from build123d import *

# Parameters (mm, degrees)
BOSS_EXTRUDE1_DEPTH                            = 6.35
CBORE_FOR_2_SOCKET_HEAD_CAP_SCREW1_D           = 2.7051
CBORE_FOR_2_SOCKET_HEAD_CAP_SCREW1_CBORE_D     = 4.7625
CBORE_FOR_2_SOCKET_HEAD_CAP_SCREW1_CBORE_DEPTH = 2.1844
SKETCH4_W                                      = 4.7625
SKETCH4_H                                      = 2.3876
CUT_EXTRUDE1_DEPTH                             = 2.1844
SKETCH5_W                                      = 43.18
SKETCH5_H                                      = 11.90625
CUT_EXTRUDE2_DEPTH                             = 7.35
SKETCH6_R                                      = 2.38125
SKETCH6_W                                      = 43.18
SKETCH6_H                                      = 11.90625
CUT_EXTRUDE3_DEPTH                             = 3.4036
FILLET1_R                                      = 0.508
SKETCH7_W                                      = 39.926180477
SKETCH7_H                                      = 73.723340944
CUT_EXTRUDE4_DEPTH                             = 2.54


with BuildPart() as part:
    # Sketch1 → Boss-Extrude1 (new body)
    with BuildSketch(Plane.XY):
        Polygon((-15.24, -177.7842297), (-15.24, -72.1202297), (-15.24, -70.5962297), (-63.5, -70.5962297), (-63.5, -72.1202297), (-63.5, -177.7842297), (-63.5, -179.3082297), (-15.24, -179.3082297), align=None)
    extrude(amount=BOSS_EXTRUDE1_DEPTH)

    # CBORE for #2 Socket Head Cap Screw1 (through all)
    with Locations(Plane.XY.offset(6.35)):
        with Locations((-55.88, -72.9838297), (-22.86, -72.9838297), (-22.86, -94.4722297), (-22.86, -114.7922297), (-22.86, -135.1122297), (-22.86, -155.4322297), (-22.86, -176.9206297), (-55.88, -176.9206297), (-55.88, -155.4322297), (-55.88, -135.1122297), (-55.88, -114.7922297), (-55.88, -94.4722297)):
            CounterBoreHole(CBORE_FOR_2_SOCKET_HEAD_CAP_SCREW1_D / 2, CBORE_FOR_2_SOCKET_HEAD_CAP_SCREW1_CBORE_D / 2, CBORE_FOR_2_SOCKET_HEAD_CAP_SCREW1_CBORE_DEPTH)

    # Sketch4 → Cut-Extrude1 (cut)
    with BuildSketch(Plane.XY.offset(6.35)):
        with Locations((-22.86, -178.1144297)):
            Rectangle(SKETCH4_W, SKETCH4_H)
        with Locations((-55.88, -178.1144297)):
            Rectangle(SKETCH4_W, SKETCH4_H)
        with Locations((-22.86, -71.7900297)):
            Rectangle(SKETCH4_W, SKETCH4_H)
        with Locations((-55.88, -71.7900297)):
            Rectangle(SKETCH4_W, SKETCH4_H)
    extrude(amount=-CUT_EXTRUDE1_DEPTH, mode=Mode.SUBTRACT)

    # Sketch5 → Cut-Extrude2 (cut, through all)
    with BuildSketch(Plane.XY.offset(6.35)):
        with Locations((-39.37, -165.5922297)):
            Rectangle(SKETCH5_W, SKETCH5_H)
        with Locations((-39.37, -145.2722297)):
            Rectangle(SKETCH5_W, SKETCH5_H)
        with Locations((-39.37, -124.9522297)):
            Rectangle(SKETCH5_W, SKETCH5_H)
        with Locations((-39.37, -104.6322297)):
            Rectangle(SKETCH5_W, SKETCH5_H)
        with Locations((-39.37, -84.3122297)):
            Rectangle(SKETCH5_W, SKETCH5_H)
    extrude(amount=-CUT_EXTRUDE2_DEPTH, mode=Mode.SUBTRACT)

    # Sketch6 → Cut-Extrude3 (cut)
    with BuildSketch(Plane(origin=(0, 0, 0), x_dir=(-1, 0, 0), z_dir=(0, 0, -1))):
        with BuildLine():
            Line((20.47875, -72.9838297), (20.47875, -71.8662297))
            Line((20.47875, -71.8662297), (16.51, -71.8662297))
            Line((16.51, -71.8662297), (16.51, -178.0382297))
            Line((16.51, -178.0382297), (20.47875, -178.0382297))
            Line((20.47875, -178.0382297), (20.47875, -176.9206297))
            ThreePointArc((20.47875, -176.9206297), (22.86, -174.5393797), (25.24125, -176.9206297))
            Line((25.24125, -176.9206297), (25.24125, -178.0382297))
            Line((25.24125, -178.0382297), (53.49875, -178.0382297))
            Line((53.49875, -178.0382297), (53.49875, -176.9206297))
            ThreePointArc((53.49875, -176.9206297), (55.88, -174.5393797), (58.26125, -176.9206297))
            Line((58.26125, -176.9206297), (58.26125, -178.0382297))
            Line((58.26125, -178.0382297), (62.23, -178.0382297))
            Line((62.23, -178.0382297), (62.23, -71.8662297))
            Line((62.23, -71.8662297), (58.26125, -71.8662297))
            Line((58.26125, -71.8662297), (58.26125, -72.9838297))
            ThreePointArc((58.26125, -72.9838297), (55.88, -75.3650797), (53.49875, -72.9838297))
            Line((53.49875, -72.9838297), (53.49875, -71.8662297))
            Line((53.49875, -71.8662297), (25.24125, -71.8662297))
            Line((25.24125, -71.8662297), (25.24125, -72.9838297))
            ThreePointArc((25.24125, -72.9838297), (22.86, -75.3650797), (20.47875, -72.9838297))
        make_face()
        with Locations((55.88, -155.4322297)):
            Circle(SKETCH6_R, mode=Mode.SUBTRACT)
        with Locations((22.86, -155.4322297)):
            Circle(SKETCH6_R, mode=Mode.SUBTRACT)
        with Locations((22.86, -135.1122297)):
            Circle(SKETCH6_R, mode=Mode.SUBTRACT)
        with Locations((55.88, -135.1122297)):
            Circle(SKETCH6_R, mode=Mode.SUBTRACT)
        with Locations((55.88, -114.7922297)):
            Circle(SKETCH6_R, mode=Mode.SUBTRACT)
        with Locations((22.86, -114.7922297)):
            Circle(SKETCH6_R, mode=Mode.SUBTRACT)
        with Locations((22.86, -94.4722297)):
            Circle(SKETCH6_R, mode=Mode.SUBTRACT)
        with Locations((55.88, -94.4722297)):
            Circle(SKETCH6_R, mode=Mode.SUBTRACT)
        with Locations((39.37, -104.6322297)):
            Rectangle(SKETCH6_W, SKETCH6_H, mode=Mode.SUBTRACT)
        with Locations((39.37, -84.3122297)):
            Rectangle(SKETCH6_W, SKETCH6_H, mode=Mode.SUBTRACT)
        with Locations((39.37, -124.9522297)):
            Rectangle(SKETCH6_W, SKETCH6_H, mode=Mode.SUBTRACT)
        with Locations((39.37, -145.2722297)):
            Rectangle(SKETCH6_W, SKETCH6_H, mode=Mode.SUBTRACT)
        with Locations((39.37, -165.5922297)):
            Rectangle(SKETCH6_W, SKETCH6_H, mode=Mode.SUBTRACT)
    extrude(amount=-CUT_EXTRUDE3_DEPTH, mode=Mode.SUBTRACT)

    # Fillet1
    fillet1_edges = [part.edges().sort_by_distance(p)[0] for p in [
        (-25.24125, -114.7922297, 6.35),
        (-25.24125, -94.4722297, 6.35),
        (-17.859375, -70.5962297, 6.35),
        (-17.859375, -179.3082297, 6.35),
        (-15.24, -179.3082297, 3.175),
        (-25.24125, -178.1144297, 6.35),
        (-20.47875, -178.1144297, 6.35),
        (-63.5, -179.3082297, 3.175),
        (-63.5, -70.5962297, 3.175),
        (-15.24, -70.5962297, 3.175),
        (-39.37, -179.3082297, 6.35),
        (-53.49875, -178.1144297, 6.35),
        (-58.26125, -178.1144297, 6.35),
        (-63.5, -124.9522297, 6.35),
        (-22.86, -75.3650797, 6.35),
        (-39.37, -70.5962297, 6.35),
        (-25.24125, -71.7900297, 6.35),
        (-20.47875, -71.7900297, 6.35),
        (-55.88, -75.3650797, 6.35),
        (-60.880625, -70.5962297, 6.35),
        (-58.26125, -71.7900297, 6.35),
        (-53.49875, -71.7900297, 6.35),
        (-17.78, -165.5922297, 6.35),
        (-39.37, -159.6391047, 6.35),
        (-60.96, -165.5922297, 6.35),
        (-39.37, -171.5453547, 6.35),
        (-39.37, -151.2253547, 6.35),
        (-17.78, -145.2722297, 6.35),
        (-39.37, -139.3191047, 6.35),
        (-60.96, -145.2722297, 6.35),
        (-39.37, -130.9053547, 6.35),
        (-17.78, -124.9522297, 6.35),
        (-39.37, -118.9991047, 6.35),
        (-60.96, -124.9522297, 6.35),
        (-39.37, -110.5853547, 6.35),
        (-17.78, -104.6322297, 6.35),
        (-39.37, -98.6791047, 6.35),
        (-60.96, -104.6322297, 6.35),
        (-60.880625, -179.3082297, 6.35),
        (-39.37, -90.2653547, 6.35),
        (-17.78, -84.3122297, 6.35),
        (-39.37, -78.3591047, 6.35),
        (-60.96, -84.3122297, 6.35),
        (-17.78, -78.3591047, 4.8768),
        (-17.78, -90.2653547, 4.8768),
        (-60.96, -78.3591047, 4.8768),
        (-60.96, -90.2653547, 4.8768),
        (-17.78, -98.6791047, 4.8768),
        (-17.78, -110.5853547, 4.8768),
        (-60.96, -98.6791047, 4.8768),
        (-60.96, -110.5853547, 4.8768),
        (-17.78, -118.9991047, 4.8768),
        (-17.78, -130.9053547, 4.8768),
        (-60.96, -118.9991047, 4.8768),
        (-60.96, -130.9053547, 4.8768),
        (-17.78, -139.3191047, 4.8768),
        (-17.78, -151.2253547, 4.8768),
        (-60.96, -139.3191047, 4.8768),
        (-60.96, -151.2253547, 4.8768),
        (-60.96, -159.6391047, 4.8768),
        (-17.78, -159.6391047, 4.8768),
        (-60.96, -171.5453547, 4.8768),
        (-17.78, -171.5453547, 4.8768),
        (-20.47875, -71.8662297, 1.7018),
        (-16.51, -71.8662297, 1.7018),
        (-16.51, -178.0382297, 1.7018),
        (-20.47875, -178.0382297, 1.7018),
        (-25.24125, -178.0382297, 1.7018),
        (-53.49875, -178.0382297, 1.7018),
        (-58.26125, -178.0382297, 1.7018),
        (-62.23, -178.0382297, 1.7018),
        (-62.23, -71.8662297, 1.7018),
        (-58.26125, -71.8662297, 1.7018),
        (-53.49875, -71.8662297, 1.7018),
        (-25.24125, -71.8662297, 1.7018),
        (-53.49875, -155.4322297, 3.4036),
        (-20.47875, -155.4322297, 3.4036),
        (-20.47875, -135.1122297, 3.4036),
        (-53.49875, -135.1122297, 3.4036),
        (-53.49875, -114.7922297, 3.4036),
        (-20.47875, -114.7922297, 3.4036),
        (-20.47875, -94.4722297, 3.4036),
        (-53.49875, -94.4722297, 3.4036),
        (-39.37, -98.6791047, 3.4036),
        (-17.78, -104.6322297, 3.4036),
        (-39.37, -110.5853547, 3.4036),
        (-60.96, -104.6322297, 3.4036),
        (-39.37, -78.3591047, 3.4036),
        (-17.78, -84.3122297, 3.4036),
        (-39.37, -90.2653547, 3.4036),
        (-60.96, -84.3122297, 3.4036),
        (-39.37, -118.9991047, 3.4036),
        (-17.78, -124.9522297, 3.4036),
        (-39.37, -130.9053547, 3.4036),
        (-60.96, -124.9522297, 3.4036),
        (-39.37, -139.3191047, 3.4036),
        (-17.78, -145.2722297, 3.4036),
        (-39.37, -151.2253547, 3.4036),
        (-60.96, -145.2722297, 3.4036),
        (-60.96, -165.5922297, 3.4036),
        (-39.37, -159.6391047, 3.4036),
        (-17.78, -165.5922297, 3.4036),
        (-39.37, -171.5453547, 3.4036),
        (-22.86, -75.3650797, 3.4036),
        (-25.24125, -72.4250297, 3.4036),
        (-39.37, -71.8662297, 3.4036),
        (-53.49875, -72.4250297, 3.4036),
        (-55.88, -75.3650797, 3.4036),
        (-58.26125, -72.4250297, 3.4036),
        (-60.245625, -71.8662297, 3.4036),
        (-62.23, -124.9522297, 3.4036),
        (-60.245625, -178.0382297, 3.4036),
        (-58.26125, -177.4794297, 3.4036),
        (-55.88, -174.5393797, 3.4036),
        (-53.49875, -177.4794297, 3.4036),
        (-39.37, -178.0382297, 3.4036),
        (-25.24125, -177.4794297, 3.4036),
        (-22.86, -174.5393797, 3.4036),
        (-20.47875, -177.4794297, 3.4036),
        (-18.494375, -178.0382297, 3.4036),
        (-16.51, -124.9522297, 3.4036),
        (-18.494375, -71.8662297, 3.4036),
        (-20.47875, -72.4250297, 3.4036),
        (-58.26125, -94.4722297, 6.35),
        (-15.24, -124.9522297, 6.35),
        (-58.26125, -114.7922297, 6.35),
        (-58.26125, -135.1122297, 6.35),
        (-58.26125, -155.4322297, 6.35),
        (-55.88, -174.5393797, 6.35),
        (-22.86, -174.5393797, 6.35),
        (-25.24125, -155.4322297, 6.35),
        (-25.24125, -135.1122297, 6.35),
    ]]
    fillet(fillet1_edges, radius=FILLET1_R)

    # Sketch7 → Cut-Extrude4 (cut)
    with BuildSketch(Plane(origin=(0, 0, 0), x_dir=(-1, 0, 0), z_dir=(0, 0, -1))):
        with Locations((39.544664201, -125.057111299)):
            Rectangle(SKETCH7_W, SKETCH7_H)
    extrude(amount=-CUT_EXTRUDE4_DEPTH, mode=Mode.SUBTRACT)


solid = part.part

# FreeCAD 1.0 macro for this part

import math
import FreeCAD as App
import Part
import Sketcher

V = App.Vector
Q = App.Units.Quantity


def edges_at(feature, points):
    """Names of the edges that pass closest to the given points."""
    edges = feature.Shape.Edges
    near = lambda p: min(range(len(edges)), key=lambda i: edges[i].distToShape(Part.Vertex(*p))[0])
    return sorted({f"Edge{near(p) + 1}" for p in points})

doc = App.newDocument("Part")
params = doc.addObject("Spreadsheet::Sheet", "Params")
for row, (alias, value) in enumerate([
    ("sketch1_width", "1.9 in"),
    ("sketch1_height", "4.28 in"),
    ("pad1_length", "0.25 in"),
    ("hole_diameter", "0.1065 in"),
    ("hole_cbore_diameter", "0.1875 in"),
    ("hole_cbore_depth", "0.086 in"),
    ("sketch3_width", "0.1875 in"),
    ("sketch3_height", "0.094 in"),
    ("pocket1_length", "0.086 in"),
    ("sketch4_width", "1.7 in"),
    ("sketch4_height", "0.46875 in"),
    ("sketch5_diameter", "0.1875 in"),
    ("sketch5_width", "1.7 in"),
    ("sketch5_height", "4.18 in"),
    ("sketch5_width2", "0.15625 in"),
    ("sketch5_height2", "0.044 in"),
    ("pocket3_length", "0.134 in"),
    ("fillet_radius", "0.02 in"),
    ("pocket4_length", "0.1 in"),
], start=1):
    params.set(f"A{row}", alias)
    params.set(f"B{row}", "=" + value)
    params.setAlias(f"B{row}", alias)

body = doc.addObject("PartDesign::Body", "Body")

# Sketch on XY plane
sketch1 = body.newObject("Sketcher::SketchObject", "Sketch")
sketch1.AttachmentSupport = (doc.getObject("XY_Plane"), [""])
sketch1.MapMode = "FlatFace"
sketch1.addGeometry(Part.LineSegment(V(-15, -71, 0), V(-64, -71, 0)), False)
sketch1.addGeometry(Part.LineSegment(V(-64, -71, 0), V(-64, -179, 0)), False)
sketch1.addGeometry(Part.LineSegment(V(-64, -179, 0), V(-15, -179, 0)), False)
sketch1.addGeometry(Part.LineSegment(V(-15, -179, 0), V(-15, -71, 0)), False)
sketch1.addConstraint(Sketcher.Constraint("Coincident", 0, 2, 1, 1))
sketch1.addConstraint(Sketcher.Constraint("Coincident", 1, 2, 2, 1))
sketch1.addConstraint(Sketcher.Constraint("Coincident", 2, 2, 3, 1))
sketch1.addConstraint(Sketcher.Constraint("Coincident", 3, 2, 0, 1))
sketch1.addConstraint(Sketcher.Constraint("Horizontal", 0))
sketch1.addConstraint(Sketcher.Constraint("Vertical", 1))
sketch1.addConstraint(Sketcher.Constraint("Horizontal", 2))
sketch1.addConstraint(Sketcher.Constraint("Vertical", 3))
sketch1.addConstraint(Sketcher.Constraint("DistanceX", 0, 2, 0, 1, Q("1.9 in")))
sketch1.addConstraint(Sketcher.Constraint("DistanceY", 1, 2, 1, 1, Q("4.28 in")))
sketch1.addConstraint(Sketcher.Constraint("DistanceX", 0, 2, -1, 1, Q("2.5 in")))
sketch1.addConstraint(Sketcher.Constraint("DistanceY", 0, 2, -1, 1, 70.59623))
sketch1.setExpression("Constraints[8]", "Params.sketch1_width")
sketch1.setExpression("Constraints[9]", "Params.sketch1_height")
pad1 = body.newObject("PartDesign::Pad", "Pad")
pad1.Profile = sketch1
pad1.setExpression("Length", "Params.pad1_length")

# Sketch on XY plane
sketch2 = body.newObject("Sketcher::SketchObject", "Sketch001")
sketch2.AttachmentSupport = (doc.getObject("XY_Plane"), [""])
sketch2.MapMode = "FlatFace"
sketch2.AttachmentOffset = App.Placement(V(0, 0, 0.25 * 25.4), App.Rotation())
sketch2.addGeometry(Part.Circle(V(-55.9, -73, 0), V(0, 0, 1), 1.4), False)
sketch2.addGeometry(Part.Circle(V(-22.9, -73, 0), V(0, 0, 1), 1.4), False)
sketch2.addGeometry(Part.Circle(V(-22.9, -94.5, 0), V(0, 0, 1), 1.4), False)
sketch2.addGeometry(Part.Circle(V(-22.9, -114.8, 0), V(0, 0, 1), 1.4), False)
sketch2.addGeometry(Part.Circle(V(-22.9, -135.1, 0), V(0, 0, 1), 1.4), False)
sketch2.addGeometry(Part.Circle(V(-22.9, -155.4, 0), V(0, 0, 1), 1.4), False)
sketch2.addGeometry(Part.Circle(V(-22.9, -176.9, 0), V(0, 0, 1), 1.4), False)
sketch2.addGeometry(Part.Circle(V(-55.9, -176.9, 0), V(0, 0, 1), 1.4), False)
sketch2.addGeometry(Part.Circle(V(-55.9, -155.4, 0), V(0, 0, 1), 1.4), False)
sketch2.addGeometry(Part.Circle(V(-55.9, -135.1, 0), V(0, 0, 1), 1.4), False)
sketch2.addGeometry(Part.Circle(V(-55.9, -114.8, 0), V(0, 0, 1), 1.4), False)
sketch2.addGeometry(Part.Circle(V(-55.9, -94.5, 0), V(0, 0, 1), 1.4), False)
sketch2.addConstraint(Sketcher.Constraint("Equal", 0, 1))
sketch2.addConstraint(Sketcher.Constraint("Equal", 1, 2))
sketch2.addConstraint(Sketcher.Constraint("Equal", 2, 3))
sketch2.addConstraint(Sketcher.Constraint("Equal", 3, 4))
sketch2.addConstraint(Sketcher.Constraint("Equal", 4, 5))
sketch2.addConstraint(Sketcher.Constraint("Equal", 5, 6))
sketch2.addConstraint(Sketcher.Constraint("Equal", 6, 7))
sketch2.addConstraint(Sketcher.Constraint("Equal", 7, 8))
sketch2.addConstraint(Sketcher.Constraint("Equal", 8, 9))
sketch2.addConstraint(Sketcher.Constraint("Equal", 9, 10))
sketch2.addConstraint(Sketcher.Constraint("Equal", 10, 11))
sketch2.addConstraint(Sketcher.Constraint("Horizontal", 0, 3, 1, 3))
sketch2.addConstraint(Sketcher.Constraint("Horizontal", 6, 3, 7, 3))
sketch2.addConstraint(Sketcher.Constraint("Horizontal", 5, 3, 8, 3))
sketch2.addConstraint(Sketcher.Constraint("Horizontal", 4, 3, 9, 3))
sketch2.addConstraint(Sketcher.Constraint("Horizontal", 3, 3, 10, 3))
sketch2.addConstraint(Sketcher.Constraint("Horizontal", 2, 3, 11, 3))
sketch2.addConstraint(Sketcher.Constraint("Vertical", 1, 3, 2, 3))
sketch2.addConstraint(Sketcher.Constraint("Vertical", 2, 3, 3, 3))
sketch2.addConstraint(Sketcher.Constraint("Vertical", 3, 3, 4, 3))
sketch2.addConstraint(Sketcher.Constraint("Vertical", 4, 3, 5, 3))
sketch2.addConstraint(Sketcher.Constraint("Vertical", 5, 3, 6, 3))
sketch2.addConstraint(Sketcher.Constraint("Vertical", 0, 3, 7, 3))
sketch2.addConstraint(Sketcher.Constraint("Vertical", 7, 3, 8, 3))
sketch2.addConstraint(Sketcher.Constraint("Vertical", 8, 3, 9, 3))
sketch2.addConstraint(Sketcher.Constraint("Vertical", 9, 3, 10, 3))
sketch2.addConstraint(Sketcher.Constraint("Vertical", 10, 3, 11, 3))
sketch2.addConstraint(Sketcher.Constraint("Diameter", 0, Q("0.1065 in")))
sketch2.addConstraint(Sketcher.Constraint("DistanceX", 0, 3, -1, 1, Q("2.2 in")))
sketch2.addConstraint(Sketcher.Constraint("DistanceX", 1, 3, -1, 1, Q("0.9 in")))
sketch2.addConstraint(Sketcher.Constraint("DistanceY", 3, 3, 2, 3, Q("0.8 in")))
sketch2.addConstraint(Sketcher.Constraint("DistanceY", 4, 3, 3, 3, Q("0.8 in")))
sketch2.addConstraint(Sketcher.Constraint("DistanceY", 5, 3, 4, 3, Q("0.8 in")))
sketch2.addConstraint(Sketcher.Constraint("DistanceY", 2, 3, 1, 3, Q("0.846 in")))
sketch2.addConstraint(Sketcher.Constraint("DistanceY", 6, 3, 5, 3, Q("0.846 in")))
sketch2.addConstraint(Sketcher.Constraint("DistanceY", 0, 3, -1, 1, 72.98383))
doc.recompute()
hole = body.newObject("PartDesign::Hole", "Hole")
hole.Profile = sketch2
hole.ThreadType = "None"
hole.setExpression("Diameter", "Params.hole_diameter")
hole.DepthType = "ThroughAll"
hole.HoleCutType = "Counterbore"
hole.setExpression("HoleCutDiameter", "Params.hole_cbore_diameter")
hole.setExpression("HoleCutDepth", "Params.hole_cbore_depth")

# Sketch on XY plane
sketch3 = body.newObject("Sketcher::SketchObject", "Sketch002")
sketch3.AttachmentSupport = (doc.getObject("XY_Plane"), [""])
sketch3.MapMode = "FlatFace"
sketch3.AttachmentOffset = App.Placement(V(0, 0, 0.25 * 25.4), App.Rotation())
sketch3.addGeometry(Part.LineSegment(V(-25.2, -176.9, 0), V(-25.2, -179.3, 0)), False)
sketch3.addGeometry(Part.LineSegment(V(-25.2, -179.3, 0), V(-20.5, -179.3, 0)), False)
sketch3.addGeometry(Part.LineSegment(V(-20.5, -179.3, 0), V(-20.5, -176.9, 0)), False)
sketch3.addGeometry(Part.LineSegment(V(-20.5, -176.9, 0), V(-25.2, -176.9, 0)), False)
sketch3.addGeometry(Part.LineSegment(V(-58.3, -176.9, 0), V(-58.3, -179.3, 0)), False)
sketch3.addGeometry(Part.LineSegment(V(-58.3, -179.3, 0), V(-53.5, -179.3, 0)), False)
sketch3.addGeometry(Part.LineSegment(V(-53.5, -179.3, 0), V(-53.5, -176.9, 0)), False)
sketch3.addGeometry(Part.LineSegment(V(-53.5, -176.9, 0), V(-58.3, -176.9, 0)), False)
sketch3.addGeometry(Part.LineSegment(V(-25.2, -70.6, 0), V(-25.2, -73, 0)), False)
sketch3.addGeometry(Part.LineSegment(V(-25.2, -73, 0), V(-20.5, -73, 0)), False)
sketch3.addGeometry(Part.LineSegment(V(-20.5, -73, 0), V(-20.5, -70.6, 0)), False)
sketch3.addGeometry(Part.LineSegment(V(-20.5, -70.6, 0), V(-25.2, -70.6, 0)), False)
sketch3.addGeometry(Part.LineSegment(V(-58.3, -70.6, 0), V(-58.3, -73, 0)), False)
sketch3.addGeometry(Part.LineSegment(V(-58.3, -73, 0), V(-53.5, -73, 0)), False)
sketch3.addGeometry(Part.LineSegment(V(-53.5, -73, 0), V(-53.5, -70.6, 0)), False)
sketch3.addGeometry(Part.LineSegment(V(-53.5, -70.6, 0), V(-58.3, -70.6, 0)), False)
sketch3.addConstraint(Sketcher.Constraint("Coincident", 0, 2, 1, 1))
sketch3.addConstraint(Sketcher.Constraint("Coincident", 1, 2, 2, 1))
sketch3.addConstraint(Sketcher.Constraint("Coincident", 2, 2, 3, 1))
sketch3.addConstraint(Sketcher.Constraint("Coincident", 3, 2, 0, 1))
sketch3.addConstraint(Sketcher.Constraint("Coincident", 4, 2, 5, 1))
sketch3.addConstraint(Sketcher.Constraint("Coincident", 5, 2, 6, 1))
sketch3.addConstraint(Sketcher.Constraint("Coincident", 6, 2, 7, 1))
sketch3.addConstraint(Sketcher.Constraint("Coincident", 7, 2, 4, 1))
sketch3.addConstraint(Sketcher.Constraint("Coincident", 8, 2, 9, 1))
sketch3.addConstraint(Sketcher.Constraint("Coincident", 9, 2, 10, 1))
sketch3.addConstraint(Sketcher.Constraint("Coincident", 10, 2, 11, 1))
sketch3.addConstraint(Sketcher.Constraint("Coincident", 11, 2, 8, 1))
sketch3.addConstraint(Sketcher.Constraint("Coincident", 12, 2, 13, 1))
sketch3.addConstraint(Sketcher.Constraint("Coincident", 13, 2, 14, 1))
sketch3.addConstraint(Sketcher.Constraint("Coincident", 14, 2, 15, 1))
sketch3.addConstraint(Sketcher.Constraint("Coincident", 15, 2, 12, 1))
sketch3.addConstraint(Sketcher.Constraint("Vertical", 0))
sketch3.addConstraint(Sketcher.Constraint("Horizontal", 1))
sketch3.addConstraint(Sketcher.Constraint("Vertical", 2))
sketch3.addConstraint(Sketcher.Constraint("Horizontal", 3))
sketch3.addConstraint(Sketcher.Constraint("Vertical", 4))
sketch3.addConstraint(Sketcher.Constraint("Horizontal", 5))
sketch3.addConstraint(Sketcher.Constraint("Vertical", 6))
sketch3.addConstraint(Sketcher.Constraint("Horizontal", 7))
sketch3.addConstraint(Sketcher.Constraint("Vertical", 8))
sketch3.addConstraint(Sketcher.Constraint("Horizontal", 9))
sketch3.addConstraint(Sketcher.Constraint("Vertical", 10))
sketch3.addConstraint(Sketcher.Constraint("Horizontal", 11))
sketch3.addConstraint(Sketcher.Constraint("Vertical", 12))
sketch3.addConstraint(Sketcher.Constraint("Horizontal", 13))
sketch3.addConstraint(Sketcher.Constraint("Vertical", 14))
sketch3.addConstraint(Sketcher.Constraint("Horizontal", 15))
sketch3.addConstraint(Sketcher.Constraint("Horizontal", 1, 2, 4, 2))
sketch3.addConstraint(Sketcher.Constraint("Horizontal", 3, 2, 6, 2))
sketch3.addConstraint(Sketcher.Constraint("Horizontal", 9, 2, 12, 2))
sketch3.addConstraint(Sketcher.Constraint("Horizontal", 11, 2, 14, 2))
sketch3.addConstraint(Sketcher.Constraint("Vertical", 3, 2, 8, 2))
sketch3.addConstraint(Sketcher.Constraint("Vertical", 2, 2, 9, 2))
sketch3.addConstraint(Sketcher.Constraint("Vertical", 7, 2, 12, 2))
sketch3.addConstraint(Sketcher.Constraint("Vertical", 6, 2, 13, 2))
sketch3.addConstraint(Sketcher.Constraint("Equal", 3, 5))
sketch3.addConstraint(Sketcher.Constraint("Equal", 6, 8))
sketch3.addConstraint(Sketcher.Constraint("DistanceX", 4, 2, 0, 2, Q("1.3 in")))
sketch3.addConstraint(Sketcher.Constraint("DistanceX", 1, 1, 1, 2, Q("0.1875 in")))
sketch3.addConstraint(Sketcher.Constraint("DistanceY", 0, 2, 0, 1, Q("0.094 in")))
sketch3.addConstraint(Sketcher.Constraint("DistanceY", 1, 2, 10, 2, Q("4.28 in")))
sketch3.addConstraint(Sketcher.Constraint("DistanceX", 0, 2, -1, 1, 25.24125))
sketch3.addConstraint(Sketcher.Constraint("DistanceY", 0, 2, -1, 1, 179.30823))
sketch3.setExpression("Constraints[43]", "Params.sketch3_width")
sketch3.setExpression("Constraints[44]", "Params.sketch3_height")
pocket1 = body.newObject("PartDesign::Pocket", "Pocket")
pocket1.Profile = sketch3
pocket1.setExpression("Length", "Params.pocket1_length")

# Sketch on XY plane
sketch4 = body.newObject("Sketcher::SketchObject", "Sketch003")
sketch4.AttachmentSupport = (doc.getObject("XY_Plane"), [""])
sketch4.MapMode = "FlatFace"
sketch4.AttachmentOffset = App.Placement(V(0, 0, 0.25 * 25.4), App.Rotation())
sketch4.addGeometry(Part.LineSegment(V(-61, -160, 0), V(-61, -172, 0)), False)
sketch4.addGeometry(Part.LineSegment(V(-61, -172, 0), V(-18, -172, 0)), False)
sketch4.addGeometry(Part.LineSegment(V(-18, -172, 0), V(-18, -160, 0)), False)
sketch4.addGeometry(Part.LineSegment(V(-18, -160, 0), V(-61, -160, 0)), False)
sketch4.addGeometry(Part.LineSegment(V(-61, -139, 0), V(-61, -151, 0)), False)
sketch4.addGeometry(Part.LineSegment(V(-61, -151, 0), V(-18, -151, 0)), False)
sketch4.addGeometry(Part.LineSegment(V(-18, -151, 0), V(-18, -139, 0)), False)
sketch4.addGeometry(Part.LineSegment(V(-18, -139, 0), V(-61, -139, 0)), False)
sketch4.addGeometry(Part.LineSegment(V(-61, -119, 0), V(-61, -131, 0)), False)
sketch4.addGeometry(Part.LineSegment(V(-61, -131, 0), V(-18, -131, 0)), False)
sketch4.addGeometry(Part.LineSegment(V(-18, -131, 0), V(-18, -119, 0)), False)
sketch4.addGeometry(Part.LineSegment(V(-18, -119, 0), V(-61, -119, 0)), False)
sketch4.addGeometry(Part.LineSegment(V(-61, -99, 0), V(-61, -111, 0)), False)
sketch4.addGeometry(Part.LineSegment(V(-61, -111, 0), V(-18, -111, 0)), False)
sketch4.addGeometry(Part.LineSegment(V(-18, -111, 0), V(-18, -99, 0)), False)
sketch4.addGeometry(Part.LineSegment(V(-18, -99, 0), V(-61, -99, 0)), False)
sketch4.addGeometry(Part.LineSegment(V(-61, -78, 0), V(-61, -90, 0)), False)
sketch4.addGeometry(Part.LineSegment(V(-61, -90, 0), V(-18, -90, 0)), False)
sketch4.addGeometry(Part.LineSegment(V(-18, -90, 0), V(-18, -78, 0)), False)
sketch4.addGeometry(Part.LineSegment(V(-18, -78, 0), V(-61, -78, 0)), False)
sketch4.addConstraint(Sketcher.Constraint("Coincident", 0, 2, 1, 1))
sketch4.addConstraint(Sketcher.Constraint("Coincident", 1, 2, 2, 1))
sketch4.addConstraint(Sketcher.Constraint("Coincident", 2, 2, 3, 1))
sketch4.addConstraint(Sketcher.Constraint("Coincident", 3, 2, 0, 1))
sketch4.addConstraint(Sketcher.Constraint("Coincident", 4, 2, 5, 1))
sketch4.addConstraint(Sketcher.Constraint("Coincident", 5, 2, 6, 1))
sketch4.addConstraint(Sketcher.Constraint("Coincident", 6, 2, 7, 1))
sketch4.addConstraint(Sketcher.Constraint("Coincident", 7, 2, 4, 1))
sketch4.addConstraint(Sketcher.Constraint("Coincident", 8, 2, 9, 1))
sketch4.addConstraint(Sketcher.Constraint("Coincident", 9, 2, 10, 1))
sketch4.addConstraint(Sketcher.Constraint("Coincident", 10, 2, 11, 1))
sketch4.addConstraint(Sketcher.Constraint("Coincident", 11, 2, 8, 1))
sketch4.addConstraint(Sketcher.Constraint("Coincident", 12, 2, 13, 1))
sketch4.addConstraint(Sketcher.Constraint("Coincident", 13, 2, 14, 1))
sketch4.addConstraint(Sketcher.Constraint("Coincident", 14, 2, 15, 1))
sketch4.addConstraint(Sketcher.Constraint("Coincident", 15, 2, 12, 1))
sketch4.addConstraint(Sketcher.Constraint("Coincident", 16, 2, 17, 1))
sketch4.addConstraint(Sketcher.Constraint("Coincident", 17, 2, 18, 1))
sketch4.addConstraint(Sketcher.Constraint("Coincident", 18, 2, 19, 1))
sketch4.addConstraint(Sketcher.Constraint("Coincident", 19, 2, 16, 1))
sketch4.addConstraint(Sketcher.Constraint("Vertical", 0))
sketch4.addConstraint(Sketcher.Constraint("Horizontal", 1))
sketch4.addConstraint(Sketcher.Constraint("Vertical", 2))
sketch4.addConstraint(Sketcher.Constraint("Horizontal", 3))
sketch4.addConstraint(Sketcher.Constraint("Vertical", 4))
sketch4.addConstraint(Sketcher.Constraint("Horizontal", 5))
sketch4.addConstraint(Sketcher.Constraint("Vertical", 6))
sketch4.addConstraint(Sketcher.Constraint("Horizontal", 7))
sketch4.addConstraint(Sketcher.Constraint("Vertical", 8))
sketch4.addConstraint(Sketcher.Constraint("Horizontal", 9))
sketch4.addConstraint(Sketcher.Constraint("Vertical", 10))
sketch4.addConstraint(Sketcher.Constraint("Horizontal", 11))
sketch4.addConstraint(Sketcher.Constraint("Vertical", 12))
sketch4.addConstraint(Sketcher.Constraint("Horizontal", 13))
sketch4.addConstraint(Sketcher.Constraint("Vertical", 14))
sketch4.addConstraint(Sketcher.Constraint("Horizontal", 15))
sketch4.addConstraint(Sketcher.Constraint("Vertical", 16))
sketch4.addConstraint(Sketcher.Constraint("Horizontal", 17))
sketch4.addConstraint(Sketcher.Constraint("Vertical", 18))
sketch4.addConstraint(Sketcher.Constraint("Horizontal", 19))
sketch4.addConstraint(Sketcher.Constraint("Vertical", 3, 2, 4, 2))
sketch4.addConstraint(Sketcher.Constraint("Vertical", 2, 2, 5, 2))
sketch4.addConstraint(Sketcher.Constraint("Vertical", 7, 2, 8, 2))
sketch4.addConstraint(Sketcher.Constraint("Vertical", 6, 2, 9, 2))
sketch4.addConstraint(Sketcher.Constraint("Vertical", 11, 2, 12, 2))
sketch4.addConstraint(Sketcher.Constraint("Vertical", 10, 2, 13, 2))
sketch4.addConstraint(Sketcher.Constraint("Vertical", 15, 2, 16, 2))
sketch4.addConstraint(Sketcher.Constraint("Vertical", 14, 2, 17, 2))
sketch4.addConstraint(Sketcher.Constraint("Equal", 2, 4))
sketch4.addConstraint(Sketcher.Constraint("Equal", 6, 8))
sketch4.addConstraint(Sketcher.Constraint("Equal", 10, 12))
sketch4.addConstraint(Sketcher.Constraint("Equal", 14, 16))
sketch4.addConstraint(Sketcher.Constraint("DistanceX", 1, 1, 1, 2, Q("1.7 in")))
sketch4.addConstraint(Sketcher.Constraint("DistanceX", 0, 2, -1, 1, Q("2.4 in")))
sketch4.addConstraint(Sketcher.Constraint("DistanceY", 0, 2, 4, 2, Q("0.8 in")))
sketch4.addConstraint(Sketcher.Constraint("DistanceY", 4, 2, 8, 2, Q("0.8 in")))
sketch4.addConstraint(Sketcher.Constraint("DistanceY", 8, 2, 12, 2, Q("0.8 in")))
sketch4.addConstraint(Sketcher.Constraint("DistanceY", 12, 2, 16, 2, Q("0.8 in")))
sketch4.addConstraint(Sketcher.Constraint("DistanceY", 0, 2, 0, 1, Q("0.46875 in")))
sketch4.addConstraint(Sketcher.Constraint("DistanceY", 0, 2, -1, 1, 171.545355))
sketch4.setExpression("Constraints[52]", "Params.sketch4_width")
sketch4.setExpression("Constraints[58]", "Params.sketch4_height")
pocket2 = body.newObject("PartDesign::Pocket", "Pocket001")
pocket2.Profile = sketch4
pocket2.Type = "ThroughAll"

# Sketch on XY plane
sketch5 = body.newObject("Sketcher::SketchObject", "Sketch004")
sketch5.AttachmentSupport = (doc.getObject("XY_Plane"), [""])
sketch5.MapMode = "FlatFace"
sketch5.addGeometry(Part.LineSegment(V(-20.5, -73, 0), V(-20.5, -71.9, 0)), False)
sketch5.addGeometry(Part.LineSegment(V(-20.5, -71.9, 0), V(-16.5, -71.9, 0)), False)
sketch5.addGeometry(Part.LineSegment(V(-16.5, -71.9, 0), V(-16.5, -178, 0)), False)
sketch5.addGeometry(Part.LineSegment(V(-16.5, -178, 0), V(-20.5, -178, 0)), False)
sketch5.addGeometry(Part.LineSegment(V(-20.5, -178, 0), V(-20.5, -176.9, 0)), False)
sketch5.addGeometry(Part.ArcOfCircle(Part.Circle(V(-22.9, -176.9, 0), V(0, 0, 1), 2.4), math.radians(0), math.radians(180)), False)
sketch5.addGeometry(Part.LineSegment(V(-25.2, -176.9, 0), V(-25.2, -178, 0)), False)
sketch5.addGeometry(Part.LineSegment(V(-25.2, -178, 0), V(-53.5, -178, 0)), False)
sketch5.addGeometry(Part.LineSegment(V(-53.5, -178, 0), V(-53.5, -176.9, 0)), False)
sketch5.addGeometry(Part.ArcOfCircle(Part.Circle(V(-55.9, -176.9, 0), V(0, 0, 1), 2.4), math.radians(0), math.radians(180)), False)
sketch5.addGeometry(Part.LineSegment(V(-58.3, -176.9, 0), V(-58.3, -178, 0)), False)
sketch5.addGeometry(Part.LineSegment(V(-58.3, -178, 0), V(-62.2, -178, 0)), False)
sketch5.addGeometry(Part.LineSegment(V(-62.2, -178, 0), V(-62.2, -71.9, 0)), False)
sketch5.addGeometry(Part.LineSegment(V(-62.2, -71.9, 0), V(-58.3, -71.9, 0)), False)
sketch5.addGeometry(Part.LineSegment(V(-58.3, -71.9, 0), V(-58.3, -73, 0)), False)
sketch5.addGeometry(Part.ArcOfCircle(Part.Circle(V(-55.9, -73, 0), V(0, 0, 1), 2.4), math.radians(180), math.radians(360)), False)
sketch5.addGeometry(Part.LineSegment(V(-53.5, -73, 0), V(-53.5, -71.9, 0)), False)
sketch5.addGeometry(Part.LineSegment(V(-53.5, -71.9, 0), V(-25.2, -71.9, 0)), False)
sketch5.addGeometry(Part.LineSegment(V(-25.2, -71.9, 0), V(-25.2, -73, 0)), False)
sketch5.addGeometry(Part.ArcOfCircle(Part.Circle(V(-22.9, -73, 0), V(0, 0, 1), 2.4), math.radians(180), math.radians(360)), False)
sketch5.addGeometry(Part.Circle(V(-22.9, -155.4, 0), V(0, 0, 1), 2.4), False)
sketch5.addGeometry(Part.Circle(V(-22.9, -135.1, 0), V(0, 0, 1), 2.4), False)
sketch5.addGeometry(Part.LineSegment(V(-61, -171.5, 0), V(-17.8, -171.5, 0)), False)
sketch5.addGeometry(Part.LineSegment(V(-17.8, -171.5, 0), V(-17.8, -159.6, 0)), False)
sketch5.addGeometry(Part.LineSegment(V(-17.8, -159.6, 0), V(-61, -159.6, 0)), False)
sketch5.addGeometry(Part.LineSegment(V(-61, -159.6, 0), V(-61, -171.5, 0)), False)
sketch5.addGeometry(Part.Circle(V(-55.9, -155.4, 0), V(0, 0, 1), 2.4), False)
sketch5.addGeometry(Part.LineSegment(V(-61, -151.2, 0), V(-17.8, -151.2, 0)), False)
sketch5.addGeometry(Part.LineSegment(V(-17.8, -151.2, 0), V(-17.8, -139.3, 0)), False)
sketch5.addGeometry(Part.LineSegment(V(-17.8, -139.3, 0), V(-61, -139.3, 0)), False)
sketch5.addGeometry(Part.LineSegment(V(-61, -139.3, 0), V(-61, -151.2, 0)), False)
sketch5.addGeometry(Part.LineSegment(V(-61, -130.9, 0), V(-17.8, -130.9, 0)), False)
sketch5.addGeometry(Part.LineSegment(V(-17.8, -130.9, 0), V(-17.8, -119, 0)), False)
sketch5.addGeometry(Part.LineSegment(V(-17.8, -119, 0), V(-61, -119, 0)), False)
sketch5.addGeometry(Part.LineSegment(V(-61, -119, 0), V(-61, -130.9, 0)), False)
sketch5.addGeometry(Part.Circle(V(-55.9, -135.1, 0), V(0, 0, 1), 2.4), False)
sketch5.addGeometry(Part.Circle(V(-22.9, -114.8, 0), V(0, 0, 1), 2.4), False)
sketch5.addGeometry(Part.Circle(V(-22.9, -94.5, 0), V(0, 0, 1), 2.4), False)
sketch5.addGeometry(Part.LineSegment(V(-61, -110.6, 0), V(-17.8, -110.6, 0)), False)
sketch5.addGeometry(Part.LineSegment(V(-17.8, -110.6, 0), V(-17.8, -98.7, 0)), False)
sketch5.addGeometry(Part.LineSegment(V(-17.8, -98.7, 0), V(-61, -98.7, 0)), False)
sketch5.addGeometry(Part.LineSegment(V(-61, -98.7, 0), V(-61, -110.6, 0)), False)
sketch5.addGeometry(Part.Circle(V(-55.9, -114.8, 0), V(0, 0, 1), 2.4), False)
sketch5.addGeometry(Part.LineSegment(V(-61, -90.3, 0), V(-17.8, -90.3, 0)), False)
sketch5.addGeometry(Part.LineSegment(V(-17.8, -90.3, 0), V(-17.8, -78.4, 0)), False)
sketch5.addGeometry(Part.LineSegment(V(-17.8, -78.4, 0), V(-61, -78.4, 0)), False)
sketch5.addGeometry(Part.LineSegment(V(-61, -78.4, 0), V(-61, -90.3, 0)), False)
sketch5.addGeometry(Part.Circle(V(-55.9, -94.5, 0), V(0, 0, 1), 2.4), False)
sketch5.addConstraint(Sketcher.Constraint("Coincident", 0, 2, 1, 1))
sketch5.addConstraint(Sketcher.Constraint("Coincident", 1, 2, 2, 1))
sketch5.addConstraint(Sketcher.Constraint("Coincident", 2, 2, 3, 1))
sketch5.addConstraint(Sketcher.Constraint("Coincident", 3, 2, 4, 1))
sketch5.addConstraint(Sketcher.Constraint("Tangent", 4, 2, 5, 1))
sketch5.addConstraint(Sketcher.Constraint("Tangent", 5, 2, 6, 1))
sketch5.addConstraint(Sketcher.Constraint("Coincident", 6, 2, 7, 1))
sketch5.addConstraint(Sketcher.Constraint("Coincident", 7, 2, 8, 1))
sketch5.addConstraint(Sketcher.Constraint("Tangent", 8, 2, 9, 1))
sketch5.addConstraint(Sketcher.Constraint("Tangent", 9, 2, 10, 1))
sketch5.addConstraint(Sketcher.Constraint("Coincident", 10, 2, 11, 1))
sketch5.addConstraint(Sketcher.Constraint("Coincident", 11, 2, 12, 1))
sketch5.addConstraint(Sketcher.Constraint("Coincident", 12, 2, 13, 1))
sketch5.addConstraint(Sketcher.Constraint("Coincident", 13, 2, 14, 1))
sketch5.addConstraint(Sketcher.Constraint("Tangent", 14, 2, 15, 1))
sketch5.addConstraint(Sketcher.Constraint("Tangent", 15, 2, 16, 1))
sketch5.addConstraint(Sketcher.Constraint("Coincident", 16, 2, 17, 1))
sketch5.addConstraint(Sketcher.Constraint("Coincident", 17, 2, 18, 1))
sketch5.addConstraint(Sketcher.Constraint("Tangent", 18, 2, 19, 1))
sketch5.addConstraint(Sketcher.Constraint("Tangent", 19, 2, 0, 1))
sketch5.addConstraint(Sketcher.Constraint("Coincident", 22, 2, 23, 1))
sketch5.addConstraint(Sketcher.Constraint("Coincident", 23, 2, 24, 1))
sketch5.addConstraint(Sketcher.Constraint("Coincident", 24, 2, 25, 1))
sketch5.addConstraint(Sketcher.Constraint("Coincident", 25, 2, 22, 1))
sketch5.addConstraint(Sketcher.Constraint("Coincident", 27, 2, 28, 1))
sketch5.addConstraint(Sketcher.Constraint("Coincident", 28, 2, 29, 1))
sketch5.addConstraint(Sketcher.Constraint("Coincident", 29, 2, 30, 1))
sketch5.addConstraint(Sketcher.Constraint("Coincident", 30, 2, 27, 1))
sketch5.addConstraint(Sketcher.Constraint("Coincident", 31, 2, 32, 1))
sketch5.addConstraint(Sketcher.Constraint("Coincident", 32, 2, 33, 1))
sketch5.addConstraint(Sketcher.Constraint("Coincident", 33, 2, 34, 1))
sketch5.addConstraint(Sketcher.Constraint("Coincident", 34, 2, 31, 1))
sketch5.addConstraint(Sketcher.Constraint("Coincident", 38, 2, 39, 1))
sketch5.addConstraint(Sketcher.Constraint("Coincident", 39, 2, 40, 1))
sketch5.addConstraint(Sketcher.Constraint("Coincident", 40, 2, 41, 1))
sketch5.addConstraint(Sketcher.Constraint("Coincident", 41, 2, 38, 1))
sketch5.addConstraint(Sketcher.Constraint("Coincident", 43, 2, 44, 1))
sketch5.addConstraint(Sketcher.Constraint("Coincident", 44, 2, 45, 1))
sketch5.addConstraint(Sketcher.Constraint("Coincident", 45, 2, 46, 1))
sketch5.addConstraint(Sketcher.Constraint("Coincident", 46, 2, 43, 1))
sketch5.addConstraint(Sketcher.Constraint("Vertical", 0))
sketch5.addConstraint(Sketcher.Constraint("Horizontal", 1))
sketch5.addConstraint(Sketcher.Constraint("Vertical", 2))
sketch5.addConstraint(Sketcher.Constraint("Horizontal", 3))
sketch5.addConstraint(Sketcher.Constraint("Vertical", 4))
sketch5.addConstraint(Sketcher.Constraint("Vertical", 6))
sketch5.addConstraint(Sketcher.Constraint("Horizontal", 7))
sketch5.addConstraint(Sketcher.Constraint("Vertical", 8))
sketch5.addConstraint(Sketcher.Constraint("Vertical", 10))
sketch5.addConstraint(Sketcher.Constraint("Horizontal", 11))
sketch5.addConstraint(Sketcher.Constraint("Vertical", 12))
sketch5.addConstraint(Sketcher.Constraint("Horizontal", 13))
sketch5.addConstraint(Sketcher.Constraint("Vertical", 14))
sketch5.addConstraint(Sketcher.Constraint("Vertical", 16))
sketch5.addConstraint(Sketcher.Constraint("Horizontal", 17))
sketch5.addConstraint(Sketcher.Constraint("Vertical", 18))
sketch5.addConstraint(Sketcher.Constraint("Horizontal", 22))
sketch5.addConstraint(Sketcher.Constraint("Vertical", 23))
sketch5.addConstraint(Sketcher.Constraint("Horizontal", 24))
sketch5.addConstraint(Sketcher.Constraint("Vertical", 25))
sketch5.addConstraint(Sketcher.Constraint("Horizontal", 27))
sketch5.addConstraint(Sketcher.Constraint("Vertical", 28))
sketch5.addConstraint(Sketcher.Constraint("Horizontal", 29))
sketch5.addConstraint(Sketcher.Constraint("Vertical", 30))
sketch5.addConstraint(Sketcher.Constraint("Horizontal", 31))
sketch5.addConstraint(Sketcher.Constraint("Vertical", 32))
sketch5.addConstraint(Sketcher.Constraint("Horizontal", 33))
sketch5.addConstraint(Sketcher.Constraint("Vertical", 34))
sketch5.addConstraint(Sketcher.Constraint("Horizontal", 38))
sketch5.addConstraint(Sketcher.Constraint("Vertical", 39))
sketch5.addConstraint(Sketcher.Constraint("Horizontal", 40))
sketch5.addConstraint(Sketcher.Constraint("Vertical", 41))
sketch5.addConstraint(Sketcher.Constraint("Horizontal", 43))
sketch5.addConstraint(Sketcher.Constraint("Vertical", 44))
sketch5.addConstraint(Sketcher.Constraint("Horizontal", 45))
sketch5.addConstraint(Sketcher.Constraint("Vertical", 46))
sketch5.addConstraint(Sketcher.Constraint("Equal", 5, 9))
sketch5.addConstraint(Sketcher.Constraint("Equal", 9, 15))
sketch5.addConstraint(Sketcher.Constraint("Equal", 15, 19))
sketch5.addConstraint(Sketcher.Constraint("Equal", 19, 20))
sketch5.addConstraint(Sketcher.Constraint("Equal", 20, 21))
sketch5.addConstraint(Sketcher.Constraint("Equal", 21, 26))
sketch5.addConstraint(Sketcher.Constraint("Equal", 26, 35))
sketch5.addConstraint(Sketcher.Constraint("Equal", 35, 36))
sketch5.addConstraint(Sketcher.Constraint("Equal", 36, 37))
sketch5.addConstraint(Sketcher.Constraint("Equal", 37, 42))
sketch5.addConstraint(Sketcher.Constraint("Equal", 42, 47))
sketch5.addConstraint(Sketcher.Constraint("Horizontal", 5, 3, 9, 3))
sketch5.addConstraint(Sketcher.Constraint("Horizontal", 15, 3, 19, 3))
sketch5.addConstraint(Sketcher.Constraint("Horizontal", 20, 3, 26, 3))
sketch5.addConstraint(Sketcher.Constraint("Horizontal", 21, 3, 35, 3))
sketch5.addConstraint(Sketcher.Constraint("Horizontal", 36, 3, 42, 3))
sketch5.addConstraint(Sketcher.Constraint("Horizontal", 37, 3, 47, 3))
sketch5.addConstraint(Sketcher.Constraint("Horizontal", 3, 2, 6, 2))
sketch5.addConstraint(Sketcher.Constraint("Horizontal", 7, 2, 10, 2))
sketch5.addConstraint(Sketcher.Constraint("Horizontal", 1, 2, 12, 2))
sketch5.addConstraint(Sketcher.Constraint("Horizontal", 13, 2, 16, 2))
sketch5.addConstraint(Sketcher.Constraint("Vertical", 9, 3, 15, 3))
sketch5.addConstraint(Sketcher.Constraint("Vertical", 5, 3, 19, 3))
sketch5.addConstraint(Sketcher.Constraint("Vertical", 19, 3, 20, 3))
sketch5.addConstraint(Sketcher.Constraint("Vertical", 20, 3, 21, 3))
sketch5.addConstraint(Sketcher.Constraint("Vertical", 15, 3, 26, 3))
sketch5.addConstraint(Sketcher.Constraint("Vertical", 26, 3, 35, 3))
sketch5.addConstraint(Sketcher.Constraint("Vertical", 21, 3, 36, 3))
sketch5.addConstraint(Sketcher.Constraint("Vertical", 36, 3, 37, 3))
sketch5.addConstraint(Sketcher.Constraint("Vertical", 35, 3, 42, 3))
sketch5.addConstraint(Sketcher.Constraint("Vertical", 42, 3, 47, 3))
sketch5.addConstraint(Sketcher.Constraint("Vertical", 23, 2, 27, 2))
sketch5.addConstraint(Sketcher.Constraint("Vertical", 25, 2, 29, 2))
sketch5.addConstraint(Sketcher.Constraint("Vertical", 28, 2, 31, 2))
sketch5.addConstraint(Sketcher.Constraint("Vertical", 30, 2, 33, 2))
sketch5.addConstraint(Sketcher.Constraint("Vertical", 32, 2, 38, 2))
sketch5.addConstraint(Sketcher.Constraint("Vertical", 34, 2, 40, 2))
sketch5.addConstraint(Sketcher.Constraint("Vertical", 39, 2, 43, 2))
sketch5.addConstraint(Sketcher.Constraint("Vertical", 41, 2, 45, 2))
sketch5.addConstraint(Sketcher.Constraint("Equal", 3, 11))
sketch5.addConstraint(Sketcher.Constraint("Equal", 0, 4))
sketch5.addConstraint(Sketcher.Constraint("Equal", 25, 28))
sketch5.addConstraint(Sketcher.Constraint("Equal", 30, 32))
sketch5.addConstraint(Sketcher.Constraint("Equal", 34, 39))
sketch5.addConstraint(Sketcher.Constraint("Equal", 41, 44))
sketch5.addConstraint(Sketcher.Constraint("Diameter", 20, Q("0.1875 in")))
sketch5.addConstraint(Sketcher.Constraint("DistanceX", 22, 1, 22, 2, Q("1.7 in")))
sketch5.addConstraint(Sketcher.Constraint("DistanceY", 2, 2, 2, 1, Q("4.18 in")))
sketch5.addConstraint(Sketcher.Constraint("DistanceX", 5, 3, -1, 1, Q("0.9 in")))
sketch5.addConstraint(Sketcher.Constraint("DistanceX", 9, 3, -1, 1, Q("2.2 in")))
sketch5.addConstraint(Sketcher.Constraint("DistanceX", 22, 2, -1, 1, Q("0.7 in")))
sketch5.addConstraint(Sketcher.Constraint("DistanceY", 20, 3, 21, 3, Q("0.8 in")))
sketch5.addConstraint(Sketcher.Constraint("DistanceY", 21, 3, 36, 3, Q("0.8 in")))
sketch5.addConstraint(Sketcher.Constraint("DistanceY", 36, 3, 37, 3, Q("0.8 in")))
sketch5.addConstraint(Sketcher.Constraint("DistanceY", 22, 2, 27, 2, Q("0.8 in")))
sketch5.addConstraint(Sketcher.Constraint("DistanceY", 27, 2, 31, 2, Q("0.8 in")))
sketch5.addConstraint(Sketcher.Constraint("DistanceY", 31, 2, 38, 2, Q("0.8 in")))
sketch5.addConstraint(Sketcher.Constraint("DistanceX", 1, 1, 1, 2, Q("0.15625 in")))
sketch5.addConstraint(Sketcher.Constraint("DistanceY", 0, 1, 0, 2, Q("0.044 in")))
sketch5.addConstraint(Sketcher.Constraint("DistanceY", 23, 1, 23, 2, Q("0.46875 in")))
sketch5.addConstraint(Sketcher.Constraint("DistanceY", 37, 3, 0, 2, Q("0.89 in")))
sketch5.addConstraint(Sketcher.Constraint("DistanceY", 5, 3, -1, 1, 176.92063))
sketch5.addConstraint(Sketcher.Constraint("DistanceY", 39, 2, 43, 2, 8.41375))
sketch5.addConstraint(Sketcher.Constraint("DistanceY", 22, 2, -1, 1, 171.545355))
sketch5.setExpression("Constraints[121]", "Params.sketch5_diameter")
sketch5.setExpression("Constraints[122]", "Params.sketch5_width")
sketch5.setExpression("Constraints[123]", "Params.sketch5_height")
sketch5.setExpression("Constraints[133]", "Params.sketch5_width2")
sketch5.setExpression("Constraints[134]", "Params.sketch5_height2")
pocket3 = body.newObject("PartDesign::Pocket", "Pocket002")
pocket3.Profile = sketch5
pocket3.setExpression("Length", "Params.pocket3_length")
pocket3.Reversed = True
doc.recompute()

fillet = body.newObject("PartDesign::Fillet", "Fillet")
fillet.Base = (pocket3, edges_at(pocket3, [
    (-25.241, -114.792, 6.35),
    (-25.241, -94.472, 6.35),
    (-17.859, -70.596, 6.35),
    (-17.859, -179.308, 6.35),
    (-15.24, -179.308, 3.175),
    (-25.241, -178.114, 6.35),
    (-20.479, -178.114, 6.35),
    (-63.5, -179.308, 3.175),
    (-63.5, -70.596, 3.175),
    (-15.24, -70.596, 3.175),
    (-39.37, -179.308, 6.35),
    (-53.499, -178.114, 6.35),
    (-58.261, -178.114, 6.35),
    (-63.5, -124.952, 6.35),
    (-22.86, -75.365, 6.35),
    (-39.37, -70.596, 6.35),
    (-25.241, -71.79, 6.35),
    (-20.479, -71.79, 6.35),
    (-55.88, -75.365, 6.35),
    (-60.881, -70.596, 6.35),
    (-58.261, -71.79, 6.35),
    (-53.499, -71.79, 6.35),
    (-17.78, -165.592, 6.35),
    (-39.37, -159.639, 6.35),
    (-60.96, -165.592, 6.35),
    (-39.37, -171.545, 6.35),
    (-39.37, -151.225, 6.35),
    (-17.78, -145.272, 6.35),
    (-39.37, -139.319, 6.35),
    (-60.96, -145.272, 6.35),
    (-39.37, -130.905, 6.35),
    (-17.78, -124.952, 6.35),
    (-39.37, -118.999, 6.35),
    (-60.96, -124.952, 6.35),
    (-39.37, -110.585, 6.35),
    (-17.78, -104.632, 6.35),
    (-39.37, -98.679, 6.35),
    (-60.96, -104.632, 6.35),
    (-60.881, -179.308, 6.35),
    (-39.37, -90.265, 6.35),
    (-17.78, -84.312, 6.35),
    (-39.37, -78.359, 6.35),
    (-60.96, -84.312, 6.35),
    (-17.78, -78.359, 4.877),
    (-17.78, -90.265, 4.877),
    (-60.96, -78.359, 4.877),
    (-60.96, -90.265, 4.877),
    (-17.78, -98.679, 4.877),
    (-17.78, -110.585, 4.877),
    (-60.96, -98.679, 4.877),
    (-60.96, -110.585, 4.877),
    (-17.78, -118.999, 4.877),
    (-17.78, -130.905, 4.877),
    (-60.96, -118.999, 4.877),
    (-60.96, -130.905, 4.877),
    (-17.78, -139.319, 4.877),
    (-17.78, -151.225, 4.877),
    (-60.96, -139.319, 4.877),
    (-60.96, -151.225, 4.877),
    (-60.96, -159.639, 4.877),
    (-17.78, -159.639, 4.877),
    (-60.96, -171.545, 4.877),
    (-17.78, -171.545, 4.877),
    (-20.479, -71.866, 1.702),
    (-16.51, -71.866, 1.702),
    (-16.51, -178.038, 1.702),
    (-20.479, -178.038, 1.702),
    (-25.241, -178.038, 1.702),
    (-53.499, -178.038, 1.702),
    (-58.261, -178.038, 1.702),
    (-62.23, -178.038, 1.702),
    (-62.23, -71.866, 1.702),
    (-58.261, -71.866, 1.702),
    (-53.499, -71.866, 1.702),
    (-25.241, -71.866, 1.702),
    (-53.499, -155.432, 3.404),
    (-20.479, -155.432, 3.404),
    (-20.479, -135.112, 3.404),
    (-53.499, -135.112, 3.404),
    (-53.499, -114.792, 3.404),
    (-20.479, -114.792, 3.404),
    (-20.479, -94.472, 3.404),
    (-53.499, -94.472, 3.404),
    (-39.37, -98.679, 3.404),
    (-17.78, -104.632, 3.404),
    (-39.37, -110.585, 3.404),
    (-60.96, -104.632, 3.404),
    (-39.37, -78.359, 3.404),
    (-17.78, -84.312, 3.404),
    (-39.37, -90.265, 3.404),
    (-60.96, -84.312, 3.404),
    (-39.37, -118.999, 3.404),
    (-17.78, -124.952, 3.404),
    (-39.37, -130.905, 3.404),
    (-60.96, -124.952, 3.404),
    (-39.37, -139.319, 3.404),
    (-17.78, -145.272, 3.404),
    (-39.37, -151.225, 3.404),
    (-60.96, -145.272, 3.404),
    (-60.96, -165.592, 3.404),
    (-39.37, -159.639, 3.404),
    (-17.78, -165.592, 3.404),
    (-39.37, -171.545, 3.404),
    (-22.86, -75.365, 3.404),
    (-25.241, -72.425, 3.404),
    (-39.37, -71.866, 3.404),
    (-53.499, -72.425, 3.404),
    (-55.88, -75.365, 3.404),
    (-58.261, -72.425, 3.404),
    (-60.246, -71.866, 3.404),
    (-62.23, -124.952, 3.404),
    (-60.246, -178.038, 3.404),
    (-58.261, -177.479, 3.404),
    (-55.88, -174.539, 3.404),
    (-53.499, -177.479, 3.404),
    (-39.37, -178.038, 3.404),
    (-25.241, -177.479, 3.404),
    (-22.86, -174.539, 3.404),
    (-20.479, -177.479, 3.404),
    (-18.494, -178.038, 3.404),
    (-16.51, -124.952, 3.404),
    (-18.494, -71.866, 3.404),
    (-20.479, -72.425, 3.404),
    (-58.261, -94.472, 6.35),
    (-15.24, -124.952, 6.35),
    (-58.261, -114.792, 6.35),
    (-58.261, -135.112, 6.35),
    (-58.261, -155.432, 6.35),
    (-55.88, -174.539, 6.35),
    (-22.86, -174.539, 6.35),
    (-25.241, -155.432, 6.35),
    (-25.241, -135.112, 6.35),
]))
fillet.setExpression("Radius", "Params.fillet_radius")

# Sketch on XY plane
sketch6 = body.newObject("Sketcher::SketchObject", "Sketch005")
sketch6.AttachmentSupport = (doc.getObject("XY_Plane"), [""])
sketch6.MapMode = "FlatFace"
sketch6.addGeometry(Part.LineSegment(V(-20, -88, 0), V(-20, -162, 0)), False)
sketch6.addGeometry(Part.LineSegment(V(-20, -162, 0), V(-60, -162, 0)), False)
sketch6.addGeometry(Part.LineSegment(V(-60, -162, 0), V(-60, -88, 0)), False)
sketch6.addGeometry(Part.LineSegment(V(-60, -88, 0), V(-20, -88, 0)), False)
sketch6.addConstraint(Sketcher.Constraint("Coincident", 0, 2, 1, 1))
sketch6.addConstraint(Sketcher.Constraint("Coincident", 1, 2, 2, 1))
sketch6.addConstraint(Sketcher.Constraint("Coincident", 2, 2, 3, 1))
sketch6.addConstraint(Sketcher.Constraint("Coincident", 3, 2, 0, 1))
sketch6.addConstraint(Sketcher.Constraint("Vertical", 0))
sketch6.addConstraint(Sketcher.Constraint("Horizontal", 1))
sketch6.addConstraint(Sketcher.Constraint("Vertical", 2))
sketch6.addConstraint(Sketcher.Constraint("Horizontal", 3))
sketch6.addConstraint(Sketcher.Constraint("DistanceX", 1, 2, 1, 1, 39.92618))
sketch6.addConstraint(Sketcher.Constraint("DistanceY", 0, 2, 0, 1, 73.723341))
sketch6.addConstraint(Sketcher.Constraint("DistanceY", 0, 2, -1, 1, 161.918782))
sketch6.addConstraint(Sketcher.Constraint("DistanceX", 0, 2, -1, 1, 19.581574))
pocket4 = body.newObject("PartDesign::Pocket", "Pocket003")
pocket4.Profile = sketch6
pocket4.setExpression("Length", "Params.pocket4_length")
pocket4.Reversed = True

doc.recompute()
